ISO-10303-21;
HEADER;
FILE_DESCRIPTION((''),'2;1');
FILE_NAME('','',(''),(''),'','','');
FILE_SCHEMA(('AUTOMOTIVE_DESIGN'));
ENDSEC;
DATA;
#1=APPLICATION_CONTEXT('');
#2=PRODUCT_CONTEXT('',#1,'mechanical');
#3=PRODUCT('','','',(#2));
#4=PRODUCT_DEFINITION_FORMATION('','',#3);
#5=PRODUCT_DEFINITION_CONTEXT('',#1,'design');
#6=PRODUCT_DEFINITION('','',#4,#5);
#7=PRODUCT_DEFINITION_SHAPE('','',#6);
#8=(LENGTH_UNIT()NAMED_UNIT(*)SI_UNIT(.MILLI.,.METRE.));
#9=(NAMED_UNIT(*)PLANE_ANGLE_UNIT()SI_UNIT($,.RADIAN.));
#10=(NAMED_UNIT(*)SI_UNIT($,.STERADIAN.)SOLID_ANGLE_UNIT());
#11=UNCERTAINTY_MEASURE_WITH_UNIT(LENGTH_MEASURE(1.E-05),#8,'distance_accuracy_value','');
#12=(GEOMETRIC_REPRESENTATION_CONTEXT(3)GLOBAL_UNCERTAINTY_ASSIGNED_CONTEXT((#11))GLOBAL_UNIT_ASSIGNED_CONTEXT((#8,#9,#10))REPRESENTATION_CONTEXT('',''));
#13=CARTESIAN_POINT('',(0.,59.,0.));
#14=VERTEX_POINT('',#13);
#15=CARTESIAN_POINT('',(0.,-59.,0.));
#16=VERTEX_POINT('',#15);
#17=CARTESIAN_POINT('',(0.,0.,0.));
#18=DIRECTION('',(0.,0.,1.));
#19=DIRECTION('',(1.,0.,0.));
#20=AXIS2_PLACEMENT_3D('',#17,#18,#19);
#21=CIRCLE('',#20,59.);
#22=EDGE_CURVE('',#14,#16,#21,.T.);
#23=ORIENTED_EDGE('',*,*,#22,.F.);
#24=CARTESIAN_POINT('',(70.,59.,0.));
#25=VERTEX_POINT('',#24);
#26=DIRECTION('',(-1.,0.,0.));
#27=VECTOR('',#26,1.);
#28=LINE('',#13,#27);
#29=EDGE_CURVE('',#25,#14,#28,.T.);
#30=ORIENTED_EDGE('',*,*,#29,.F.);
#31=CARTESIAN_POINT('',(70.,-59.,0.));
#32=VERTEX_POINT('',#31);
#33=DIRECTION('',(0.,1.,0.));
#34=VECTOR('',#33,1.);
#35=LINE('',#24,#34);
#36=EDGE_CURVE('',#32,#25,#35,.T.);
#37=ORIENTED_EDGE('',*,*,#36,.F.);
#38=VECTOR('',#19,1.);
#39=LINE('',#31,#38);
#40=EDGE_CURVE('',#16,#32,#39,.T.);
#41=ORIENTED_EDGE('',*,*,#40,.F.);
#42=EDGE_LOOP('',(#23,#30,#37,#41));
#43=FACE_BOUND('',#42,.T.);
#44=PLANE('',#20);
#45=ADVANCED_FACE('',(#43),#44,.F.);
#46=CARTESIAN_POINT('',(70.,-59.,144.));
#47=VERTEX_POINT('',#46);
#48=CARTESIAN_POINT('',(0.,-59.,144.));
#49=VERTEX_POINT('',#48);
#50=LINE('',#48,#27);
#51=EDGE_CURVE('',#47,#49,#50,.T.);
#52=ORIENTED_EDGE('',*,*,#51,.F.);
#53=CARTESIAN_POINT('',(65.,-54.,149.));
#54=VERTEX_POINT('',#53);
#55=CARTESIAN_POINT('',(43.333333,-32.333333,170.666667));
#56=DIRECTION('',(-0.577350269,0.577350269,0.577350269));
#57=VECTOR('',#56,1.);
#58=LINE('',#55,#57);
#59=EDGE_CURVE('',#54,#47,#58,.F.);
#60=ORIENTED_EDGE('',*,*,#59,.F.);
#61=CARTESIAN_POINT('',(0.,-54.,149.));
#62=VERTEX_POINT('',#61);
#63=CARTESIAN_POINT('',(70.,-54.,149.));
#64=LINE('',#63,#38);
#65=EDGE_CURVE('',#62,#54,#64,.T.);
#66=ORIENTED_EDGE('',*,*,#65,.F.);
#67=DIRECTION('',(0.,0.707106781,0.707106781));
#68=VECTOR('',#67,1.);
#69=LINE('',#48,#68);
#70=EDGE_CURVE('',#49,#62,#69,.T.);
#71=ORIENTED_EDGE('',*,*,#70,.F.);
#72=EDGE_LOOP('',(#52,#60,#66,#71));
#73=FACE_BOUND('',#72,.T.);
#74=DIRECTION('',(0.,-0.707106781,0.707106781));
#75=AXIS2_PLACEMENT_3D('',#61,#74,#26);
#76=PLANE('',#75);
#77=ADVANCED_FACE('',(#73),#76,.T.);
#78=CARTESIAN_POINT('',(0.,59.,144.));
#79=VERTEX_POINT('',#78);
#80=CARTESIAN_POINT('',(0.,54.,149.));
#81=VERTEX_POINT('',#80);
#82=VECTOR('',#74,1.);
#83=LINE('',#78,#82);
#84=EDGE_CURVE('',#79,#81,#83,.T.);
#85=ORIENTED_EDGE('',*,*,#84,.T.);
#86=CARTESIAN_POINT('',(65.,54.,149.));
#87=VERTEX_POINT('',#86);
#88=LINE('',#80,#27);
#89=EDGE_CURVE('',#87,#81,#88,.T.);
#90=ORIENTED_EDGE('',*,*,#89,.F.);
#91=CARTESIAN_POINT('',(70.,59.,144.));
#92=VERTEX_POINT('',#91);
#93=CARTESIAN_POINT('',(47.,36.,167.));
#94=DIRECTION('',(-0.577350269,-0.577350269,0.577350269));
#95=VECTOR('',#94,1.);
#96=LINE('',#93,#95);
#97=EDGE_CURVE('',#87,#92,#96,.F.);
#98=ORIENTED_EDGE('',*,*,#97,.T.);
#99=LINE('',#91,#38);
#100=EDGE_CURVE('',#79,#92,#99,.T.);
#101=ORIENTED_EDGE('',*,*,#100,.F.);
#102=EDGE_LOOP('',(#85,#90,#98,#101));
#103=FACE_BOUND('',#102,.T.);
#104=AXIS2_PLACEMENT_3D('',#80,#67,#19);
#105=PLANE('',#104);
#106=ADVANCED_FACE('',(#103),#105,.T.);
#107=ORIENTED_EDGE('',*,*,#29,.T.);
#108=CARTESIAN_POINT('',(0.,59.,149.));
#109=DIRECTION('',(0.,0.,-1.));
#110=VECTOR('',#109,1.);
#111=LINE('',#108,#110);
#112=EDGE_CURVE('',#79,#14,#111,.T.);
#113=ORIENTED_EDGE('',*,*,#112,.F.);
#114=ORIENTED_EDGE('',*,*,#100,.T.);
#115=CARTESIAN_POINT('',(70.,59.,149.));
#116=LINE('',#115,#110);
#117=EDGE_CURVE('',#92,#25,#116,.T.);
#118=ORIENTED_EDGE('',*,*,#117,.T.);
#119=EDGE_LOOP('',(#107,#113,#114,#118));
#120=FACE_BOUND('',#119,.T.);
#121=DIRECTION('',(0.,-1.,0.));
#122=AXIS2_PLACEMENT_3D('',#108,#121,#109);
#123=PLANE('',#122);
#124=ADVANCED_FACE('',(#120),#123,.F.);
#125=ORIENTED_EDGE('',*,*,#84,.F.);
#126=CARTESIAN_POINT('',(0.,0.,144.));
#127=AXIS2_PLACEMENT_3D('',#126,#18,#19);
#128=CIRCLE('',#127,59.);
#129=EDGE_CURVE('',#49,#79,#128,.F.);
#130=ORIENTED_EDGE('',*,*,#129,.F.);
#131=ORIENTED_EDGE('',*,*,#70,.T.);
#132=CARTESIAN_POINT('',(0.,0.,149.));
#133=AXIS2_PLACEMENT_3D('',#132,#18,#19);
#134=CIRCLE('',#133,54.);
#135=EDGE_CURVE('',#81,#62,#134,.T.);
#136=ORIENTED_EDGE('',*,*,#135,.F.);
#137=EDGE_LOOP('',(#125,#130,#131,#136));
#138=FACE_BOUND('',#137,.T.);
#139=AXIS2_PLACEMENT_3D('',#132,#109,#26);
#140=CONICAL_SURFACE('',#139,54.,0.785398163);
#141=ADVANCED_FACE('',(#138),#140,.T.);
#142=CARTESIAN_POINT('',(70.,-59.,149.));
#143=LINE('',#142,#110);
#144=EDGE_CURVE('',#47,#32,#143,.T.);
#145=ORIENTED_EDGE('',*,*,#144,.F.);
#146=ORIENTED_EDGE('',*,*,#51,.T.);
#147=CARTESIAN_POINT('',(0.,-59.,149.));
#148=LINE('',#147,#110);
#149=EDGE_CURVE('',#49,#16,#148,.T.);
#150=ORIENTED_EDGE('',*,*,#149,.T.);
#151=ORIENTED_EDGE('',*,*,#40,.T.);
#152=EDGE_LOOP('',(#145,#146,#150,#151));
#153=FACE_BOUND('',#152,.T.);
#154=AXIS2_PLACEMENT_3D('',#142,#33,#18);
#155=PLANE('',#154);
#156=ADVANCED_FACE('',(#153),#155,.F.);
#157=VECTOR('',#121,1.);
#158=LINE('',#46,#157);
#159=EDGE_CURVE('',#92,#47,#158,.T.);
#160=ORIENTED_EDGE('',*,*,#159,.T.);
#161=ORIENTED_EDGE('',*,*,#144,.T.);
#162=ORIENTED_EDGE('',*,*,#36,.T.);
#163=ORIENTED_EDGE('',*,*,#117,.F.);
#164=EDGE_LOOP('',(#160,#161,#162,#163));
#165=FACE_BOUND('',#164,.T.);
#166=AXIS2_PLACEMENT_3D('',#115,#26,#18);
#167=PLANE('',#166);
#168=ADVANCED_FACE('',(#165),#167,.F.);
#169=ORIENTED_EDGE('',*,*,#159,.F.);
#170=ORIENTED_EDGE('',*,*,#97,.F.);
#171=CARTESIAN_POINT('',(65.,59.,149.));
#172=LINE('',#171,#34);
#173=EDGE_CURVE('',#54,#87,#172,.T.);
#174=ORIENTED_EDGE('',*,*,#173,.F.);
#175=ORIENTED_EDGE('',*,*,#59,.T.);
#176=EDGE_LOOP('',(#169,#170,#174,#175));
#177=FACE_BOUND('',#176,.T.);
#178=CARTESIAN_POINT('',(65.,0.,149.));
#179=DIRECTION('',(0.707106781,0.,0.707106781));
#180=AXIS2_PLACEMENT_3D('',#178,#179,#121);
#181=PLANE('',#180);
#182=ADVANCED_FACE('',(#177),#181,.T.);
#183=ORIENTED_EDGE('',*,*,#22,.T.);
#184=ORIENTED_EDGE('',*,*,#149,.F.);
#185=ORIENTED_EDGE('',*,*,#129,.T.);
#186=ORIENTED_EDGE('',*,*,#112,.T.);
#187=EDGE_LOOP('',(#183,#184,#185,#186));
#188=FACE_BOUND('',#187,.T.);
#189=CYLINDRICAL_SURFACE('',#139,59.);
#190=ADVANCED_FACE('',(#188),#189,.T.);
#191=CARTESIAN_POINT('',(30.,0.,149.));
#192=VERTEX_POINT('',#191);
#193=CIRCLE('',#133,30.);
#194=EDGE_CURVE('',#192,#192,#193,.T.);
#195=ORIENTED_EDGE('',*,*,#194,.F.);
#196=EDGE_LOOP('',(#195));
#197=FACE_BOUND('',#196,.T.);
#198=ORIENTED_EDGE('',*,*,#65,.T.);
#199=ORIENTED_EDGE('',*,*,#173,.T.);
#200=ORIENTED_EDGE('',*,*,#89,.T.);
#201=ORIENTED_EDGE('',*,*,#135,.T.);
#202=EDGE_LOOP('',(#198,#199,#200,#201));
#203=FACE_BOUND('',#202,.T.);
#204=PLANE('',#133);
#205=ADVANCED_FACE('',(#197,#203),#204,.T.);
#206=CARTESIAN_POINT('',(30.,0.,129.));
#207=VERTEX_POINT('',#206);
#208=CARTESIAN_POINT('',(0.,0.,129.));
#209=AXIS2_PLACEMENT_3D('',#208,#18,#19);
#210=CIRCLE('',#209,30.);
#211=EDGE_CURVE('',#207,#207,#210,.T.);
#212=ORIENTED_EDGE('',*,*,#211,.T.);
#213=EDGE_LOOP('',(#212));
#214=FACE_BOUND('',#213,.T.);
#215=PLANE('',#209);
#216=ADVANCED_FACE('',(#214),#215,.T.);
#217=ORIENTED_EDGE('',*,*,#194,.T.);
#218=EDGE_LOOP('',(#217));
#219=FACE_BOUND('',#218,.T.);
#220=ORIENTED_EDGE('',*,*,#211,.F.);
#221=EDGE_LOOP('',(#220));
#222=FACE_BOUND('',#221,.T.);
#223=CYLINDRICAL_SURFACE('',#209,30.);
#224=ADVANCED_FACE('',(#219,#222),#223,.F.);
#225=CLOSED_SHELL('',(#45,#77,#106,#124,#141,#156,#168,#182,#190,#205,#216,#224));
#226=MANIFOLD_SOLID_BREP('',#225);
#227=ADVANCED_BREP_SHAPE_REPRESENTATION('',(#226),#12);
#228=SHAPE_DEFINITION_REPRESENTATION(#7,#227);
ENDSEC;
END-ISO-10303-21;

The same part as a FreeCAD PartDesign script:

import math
import FreeCAD as App
import Part
import Sketcher


def edges_at(feature, points):
    """Names of the edges that pass closest to the given points."""
    edges = feature.Shape.Edges
    near = lambda p: min(range(len(edges)), key=lambda i: edges[i].distToShape(Part.Vertex(*p))[0])
    return sorted({f"Edge{near(p) + 1}" for p in points})

doc = App.newDocument("Part")
body = doc.addObject("PartDesign::Body", "Body")

sketch1 = body.newObject("Sketcher::SketchObject", "Sketch")
sketch1.AttachmentSupport = (doc.getObject("XY_Plane"), [""])
sketch1.MapMode = "FlatFace"
sketch1.addGeometry(Part.LineSegment(App.Vector(70, 59, 0), App.Vector(0, 59, 0)), False)
sketch1.addGeometry(Part.ArcOfCircle(Part.Circle(App.Vector(0, 0, 0), App.Vector(0, 0, 1), 59), math.radians(90), math.radians(270)), False)
sketch1.addGeometry(Part.LineSegment(App.Vector(0, -59, 0), App.Vector(70, -59, 0)), False)
sketch1.addGeometry(Part.LineSegment(App.Vector(70, -59, 0), App.Vector(70, 59, 0)), False)
sketch1.addConstraint(Sketcher.Constraint("Tangent", 0, 2, 1, 1))
sketch1.addConstraint(Sketcher.Constraint("Tangent", 1, 2, 2, 1))
sketch1.addConstraint(Sketcher.Constraint("Coincident", 2, 2, 3, 1))
sketch1.addConstraint(Sketcher.Constraint("Coincident", 3, 2, 0, 1))
sketch1.addConstraint(Sketcher.Constraint("Horizontal", 0))
sketch1.addConstraint(Sketcher.Constraint("Horizontal", 2))
sketch1.addConstraint(Sketcher.Constraint("Vertical", 3))
sketch1.addConstraint(Sketcher.Constraint("Coincident", 1, 3, -1, 1))
sketch1.addConstraint(Sketcher.Constraint("Radius", 1, 59.0))
sketch1.addConstraint(Sketcher.Constraint("DistanceX", 0, 2, 0, 1, 70.0))
pad1 = body.newObject("PartDesign::Pad", "Pad")
pad1.Profile = sketch1
pad1.Length = 149
doc.recompute()

chamfer = body.newObject("PartDesign::Chamfer", "Chamfer")
chamfer.Base = (pad1, edges_at(pad1, [
    (70, 0, 149),
    (35, 59, 149),
    (-59, 0, 149),
    (35, -59, 149),
]))
chamfer.Size = 5

sketch2 = body.newObject("Sketcher::SketchObject", "Sketch001")
sketch2.AttachmentSupport = (doc.getObject("XY_Plane"), [""])
sketch2.MapMode = "FlatFace"
sketch2.AttachmentOffset = App.Placement(App.Vector(0, 0, 149), App.Rotation())
sketch2.addGeometry(Part.Circle(App.Vector(0, 0, 0), App.Vector(0, 0, 1), 30), False)
sketch2.addConstraint(Sketcher.Constraint("Coincident", 0, 3, -1, 1))
sketch2.addConstraint(Sketcher.Constraint("Diameter", 0, 60.0))
pocket1 = body.newObject("PartDesign::Pocket", "Pocket")
pocket1.Profile = sketch2
pocket1.Length = 20

doc.recompute()
